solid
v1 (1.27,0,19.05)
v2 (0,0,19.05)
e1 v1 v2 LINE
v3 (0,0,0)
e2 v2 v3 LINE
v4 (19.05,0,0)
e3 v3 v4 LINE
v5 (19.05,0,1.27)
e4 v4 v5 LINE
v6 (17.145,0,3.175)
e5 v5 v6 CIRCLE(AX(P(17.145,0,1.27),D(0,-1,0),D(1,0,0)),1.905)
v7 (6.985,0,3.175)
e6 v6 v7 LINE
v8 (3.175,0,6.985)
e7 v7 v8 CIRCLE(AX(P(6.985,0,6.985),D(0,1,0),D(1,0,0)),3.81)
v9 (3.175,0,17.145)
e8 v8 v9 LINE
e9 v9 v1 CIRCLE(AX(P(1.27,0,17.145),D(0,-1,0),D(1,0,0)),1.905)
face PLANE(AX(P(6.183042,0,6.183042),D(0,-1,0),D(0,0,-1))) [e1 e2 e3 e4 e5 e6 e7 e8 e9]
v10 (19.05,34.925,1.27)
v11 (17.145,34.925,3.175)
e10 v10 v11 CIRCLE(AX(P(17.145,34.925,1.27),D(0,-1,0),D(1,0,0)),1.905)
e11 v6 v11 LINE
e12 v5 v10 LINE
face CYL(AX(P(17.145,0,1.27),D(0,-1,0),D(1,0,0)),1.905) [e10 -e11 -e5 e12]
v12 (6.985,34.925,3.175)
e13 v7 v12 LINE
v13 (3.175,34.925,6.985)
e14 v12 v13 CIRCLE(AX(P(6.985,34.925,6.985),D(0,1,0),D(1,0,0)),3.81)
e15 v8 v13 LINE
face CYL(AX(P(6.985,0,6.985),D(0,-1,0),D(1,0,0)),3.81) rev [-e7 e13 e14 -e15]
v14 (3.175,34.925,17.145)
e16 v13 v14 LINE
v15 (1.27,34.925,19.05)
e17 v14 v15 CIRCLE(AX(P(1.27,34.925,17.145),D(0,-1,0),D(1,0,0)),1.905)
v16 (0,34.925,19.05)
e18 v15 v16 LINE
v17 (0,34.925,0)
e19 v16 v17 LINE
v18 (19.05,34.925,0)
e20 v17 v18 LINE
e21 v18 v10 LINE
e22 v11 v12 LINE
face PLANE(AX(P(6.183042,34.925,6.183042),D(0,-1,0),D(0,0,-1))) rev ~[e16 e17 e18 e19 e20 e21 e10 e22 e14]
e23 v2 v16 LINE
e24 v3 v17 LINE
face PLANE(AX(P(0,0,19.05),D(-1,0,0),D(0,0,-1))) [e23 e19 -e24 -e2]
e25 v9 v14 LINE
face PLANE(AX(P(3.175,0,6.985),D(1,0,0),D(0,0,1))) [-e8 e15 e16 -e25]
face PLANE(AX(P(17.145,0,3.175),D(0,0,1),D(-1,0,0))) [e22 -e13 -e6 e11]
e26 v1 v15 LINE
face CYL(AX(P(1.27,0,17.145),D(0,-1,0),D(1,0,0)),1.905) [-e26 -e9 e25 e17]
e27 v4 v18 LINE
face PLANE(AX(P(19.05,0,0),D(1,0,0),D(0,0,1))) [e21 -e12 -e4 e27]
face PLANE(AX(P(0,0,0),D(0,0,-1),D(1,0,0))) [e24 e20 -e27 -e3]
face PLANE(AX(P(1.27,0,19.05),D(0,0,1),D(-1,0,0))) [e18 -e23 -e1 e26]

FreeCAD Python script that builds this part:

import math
import FreeCAD as App
import Part
import Sketcher
from FreeCAD import Vector
Q = App.Units.Quantity

doc = App.newDocument("Part")
body = doc.addObject("PartDesign::Body", "Body")

sketch1 = body.newObject("Sketcher::SketchObject", "Sketch")
sketch1.AttachmentSupport = (doc.getObject("XZ_Plane"), [""])
sketch1.MapMode = "FlatFace"
sketch1.addGeometry([
    Part.LineSegment(Vector(1.27, 19.05, 0), Vector(0, 19.05, 0)),
    Part.LineSegment(Vector(0, 19.05, 0), Vector(0, 0, 0)),
    Part.LineSegment(Vector(0, 0, 0), Vector(19.05, 0, 0)),
    Part.LineSegment(Vector(19.05, 0, 0), Vector(19.05, 1.27, 0)),
    Part.ArcOfCircle(Part.Circle(Vector(17.145, 1.27, 0), Vector(0, 0, 1), 1.905), math.radians(0), math.radians(90)),
    Part.LineSegment(Vector(17.145, 3.175, 0), Vector(6.985, 3.175, 0)),
    Part.ArcOfCircle(Part.Circle(Vector(6.985, 6.985, 0), Vector(0, 0, 1), 3.81), math.radians(180), math.radians(270)),
    Part.LineSegment(Vector(3.175, 6.985, 0), Vector(3.175, 17.145, 0)),
    Part.ArcOfCircle(Part.Circle(Vector(1.27, 17.145, 0), Vector(0, 0, 1), 1.905), math.radians(0), math.radians(90)),
], False)
sketch1.addConstraint([
    Sketcher.Constraint("Coincident", 0, 2, 1, 1),
    Sketcher.Constraint("Coincident", 1, 2, 2, 1),
    Sketcher.Constraint("Coincident", 2, 2, 3, 1),
    Sketcher.Constraint("Tangent", 3, 2, 4, 1),
    Sketcher.Constraint("Tangent", 4, 2, 5, 1),
    Sketcher.Constraint("Tangent", 5, 2, 6, 2),
    Sketcher.Constraint("Tangent", 6, 1, 7, 1),
    Sketcher.Constraint("Tangent", 7, 2, 8, 1),
    Sketcher.Constraint("Tangent", 8, 2, 0, 1),
    Sketcher.Constraint("Horizontal", 0),
    Sketcher.Constraint("Vertical", 1),
    Sketcher.Constraint("Horizontal", 2),
    Sketcher.Constraint("Vertical", 3),
    Sketcher.Constraint("Horizontal", 5),
    Sketcher.Constraint("Vertical", 7),
    Sketcher.Constraint("Coincident", 1, 2, -1, 1),
    Sketcher.Constraint("Equal", 4, 8),
    Sketcher.Constraint("Equal", 2, 1),
    Sketcher.Constraint("Equal", 0, 3),
    Sketcher.Constraint("Radius", 6, Q("0.15 in")),
    Sketcher.Constraint("DistanceX", 5, 2, 5, 1, Q("0.4 in")),
    Sketcher.Constraint("Radius", 4, Q("0.075 in")),
    Sketcher.Constraint("DistanceX", 0, 2, 0, 1, Q("0.05 in")),
])
pad1 = body.newObject("PartDesign::Pad", "Pad")
pad1.Profile = sketch1
pad1.Length = Q("1.375 in")
pad1.Reversed = True

doc.recompute()
